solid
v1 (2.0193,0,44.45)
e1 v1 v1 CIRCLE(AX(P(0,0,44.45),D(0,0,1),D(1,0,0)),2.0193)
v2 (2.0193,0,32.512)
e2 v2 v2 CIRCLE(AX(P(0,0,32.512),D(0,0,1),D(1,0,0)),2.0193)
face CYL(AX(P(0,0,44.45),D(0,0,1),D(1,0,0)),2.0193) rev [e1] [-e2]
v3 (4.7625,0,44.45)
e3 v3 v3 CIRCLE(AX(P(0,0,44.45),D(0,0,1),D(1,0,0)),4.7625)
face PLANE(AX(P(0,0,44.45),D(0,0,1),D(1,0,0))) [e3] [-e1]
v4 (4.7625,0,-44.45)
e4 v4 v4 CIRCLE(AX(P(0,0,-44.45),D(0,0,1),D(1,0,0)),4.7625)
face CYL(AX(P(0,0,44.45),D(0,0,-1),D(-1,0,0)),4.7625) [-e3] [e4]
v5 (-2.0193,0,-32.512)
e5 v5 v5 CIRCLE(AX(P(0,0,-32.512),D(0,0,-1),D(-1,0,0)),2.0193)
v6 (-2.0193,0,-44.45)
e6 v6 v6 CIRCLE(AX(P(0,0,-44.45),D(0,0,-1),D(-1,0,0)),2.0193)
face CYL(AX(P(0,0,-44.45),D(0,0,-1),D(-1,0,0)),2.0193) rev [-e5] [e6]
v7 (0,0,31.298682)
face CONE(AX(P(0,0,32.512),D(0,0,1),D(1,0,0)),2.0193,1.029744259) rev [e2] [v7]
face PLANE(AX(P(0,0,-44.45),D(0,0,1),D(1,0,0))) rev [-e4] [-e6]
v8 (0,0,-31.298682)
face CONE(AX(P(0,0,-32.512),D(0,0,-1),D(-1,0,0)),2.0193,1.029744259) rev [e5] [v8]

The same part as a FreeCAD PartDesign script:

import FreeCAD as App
import Part
import Sketcher
from FreeCAD import Vector
Q = App.Units.Quantity

doc = App.newDocument("Part")
params = doc.addObject("Spreadsheet::Sheet", "Params")
for row, (alias, value) in enumerate([
    ("sketch1_diameter", "0.375 in"),
    ("pad1_length", "3.5 in"),
    ("sketch2_diameter", "0.159 in"),
    ("hole_diameter", "0.159 in"),
    ("hole_depth", "0.47 in"),
    ("sketch3_diameter", "0.159 in"),
    ("hole2_diameter", "0.159 in"),
    ("hole2_depth", "0.47 in"),
], start=1):
    params.set(f"A{row}", alias)
    params.set(f"B{row}", "=" + value)
    params.setAlias(f"B{row}", alias)

body = doc.addObject("PartDesign::Body", "Body")

sketch1 = body.newObject("Sketcher::SketchObject", "Sketch")
sketch1.AttachmentSupport = (doc.getObject("XY_Plane"), [""])
sketch1.MapMode = "FlatFace"
sketch1.addGeometry(Part.Circle(Vector(0, 0, 0), Vector(0, 0, 1), 4.8), False)
sketch1.addConstraint([
    Sketcher.Constraint("Coincident", 0, 3, -1, 1),
    Sketcher.Constraint("Diameter", 0, Q("0.375 in")),
])
sketch1.setExpression("Constraints[1]", "Params.sketch1_diameter")
pad1 = body.newObject("PartDesign::Pad", "Pad")
pad1.Profile = sketch1
pad1.setExpression("Length", "Params.pad1_length")
pad1.Midplane = True

sketch2 = body.newObject("Sketcher::SketchObject", "Sketch001")
sketch2.AttachmentSupport = (doc.getObject("XY_Plane"), [""])
sketch2.MapMode = "FlatFace"
sketch2.AttachmentOffset = App.Placement(Vector(0, 0, 1.75 * 25.4), App.Rotation())
sketch2.addGeometry(Part.Circle(Vector(0, 0, 0), Vector(0, 0, 1), 2), False)
sketch2.addConstraint([
    Sketcher.Constraint("Coincident", 0, 3, -1, 1),
    Sketcher.Constraint("Diameter", 0, Q("0.159 in")),
])
sketch2.setExpression("Constraints[1]", "Params.sketch2_diameter")
doc.recompute()
hole = body.newObject("PartDesign::Hole", "Hole")
hole.Profile = sketch2
hole.ThreadType = "None"
hole.setExpression("Diameter", "Params.hole_diameter")
hole.DepthType = "Dimension"
hole.setExpression("Depth", "Params.hole_depth")
hole.DrillPoint = "Angled"
hole.DrillPointAngle = 118

sketch3 = body.newObject("Sketcher::SketchObject", "Sketch002")
sketch3.AttachmentSupport = (doc.getObject("XY_Plane"), [""])
sketch3.MapMode = "FlatFace"
sketch3.AttachmentOffset = App.Placement(Vector(0, 0, -1.75 * 25.4), App.Rotation())
sketch3.addGeometry(Part.Circle(Vector(0, 0, 0), Vector(0, 0, 1), 2), False)
sketch3.addConstraint([
    Sketcher.Constraint("Coincident", 0, 3, -1, 1),
    Sketcher.Constraint("Diameter", 0, Q("0.159 in")),
])
sketch3.setExpression("Constraints[1]", "Params.sketch3_diameter")
doc.recompute()
hole2 = body.newObject("PartDesign::Hole", "Hole001")
hole2.Profile = sketch3
hole2.ThreadType = "None"
hole2.setExpression("Diameter", "Params.hole2_diameter")
hole2.DepthType = "Dimension"
hole2.setExpression("Depth", "Params.hole2_depth")
hole2.DrillPoint = "Angled"
hole2.DrillPointAngle = 118
hole2.Reversed = True

doc.recompute()
